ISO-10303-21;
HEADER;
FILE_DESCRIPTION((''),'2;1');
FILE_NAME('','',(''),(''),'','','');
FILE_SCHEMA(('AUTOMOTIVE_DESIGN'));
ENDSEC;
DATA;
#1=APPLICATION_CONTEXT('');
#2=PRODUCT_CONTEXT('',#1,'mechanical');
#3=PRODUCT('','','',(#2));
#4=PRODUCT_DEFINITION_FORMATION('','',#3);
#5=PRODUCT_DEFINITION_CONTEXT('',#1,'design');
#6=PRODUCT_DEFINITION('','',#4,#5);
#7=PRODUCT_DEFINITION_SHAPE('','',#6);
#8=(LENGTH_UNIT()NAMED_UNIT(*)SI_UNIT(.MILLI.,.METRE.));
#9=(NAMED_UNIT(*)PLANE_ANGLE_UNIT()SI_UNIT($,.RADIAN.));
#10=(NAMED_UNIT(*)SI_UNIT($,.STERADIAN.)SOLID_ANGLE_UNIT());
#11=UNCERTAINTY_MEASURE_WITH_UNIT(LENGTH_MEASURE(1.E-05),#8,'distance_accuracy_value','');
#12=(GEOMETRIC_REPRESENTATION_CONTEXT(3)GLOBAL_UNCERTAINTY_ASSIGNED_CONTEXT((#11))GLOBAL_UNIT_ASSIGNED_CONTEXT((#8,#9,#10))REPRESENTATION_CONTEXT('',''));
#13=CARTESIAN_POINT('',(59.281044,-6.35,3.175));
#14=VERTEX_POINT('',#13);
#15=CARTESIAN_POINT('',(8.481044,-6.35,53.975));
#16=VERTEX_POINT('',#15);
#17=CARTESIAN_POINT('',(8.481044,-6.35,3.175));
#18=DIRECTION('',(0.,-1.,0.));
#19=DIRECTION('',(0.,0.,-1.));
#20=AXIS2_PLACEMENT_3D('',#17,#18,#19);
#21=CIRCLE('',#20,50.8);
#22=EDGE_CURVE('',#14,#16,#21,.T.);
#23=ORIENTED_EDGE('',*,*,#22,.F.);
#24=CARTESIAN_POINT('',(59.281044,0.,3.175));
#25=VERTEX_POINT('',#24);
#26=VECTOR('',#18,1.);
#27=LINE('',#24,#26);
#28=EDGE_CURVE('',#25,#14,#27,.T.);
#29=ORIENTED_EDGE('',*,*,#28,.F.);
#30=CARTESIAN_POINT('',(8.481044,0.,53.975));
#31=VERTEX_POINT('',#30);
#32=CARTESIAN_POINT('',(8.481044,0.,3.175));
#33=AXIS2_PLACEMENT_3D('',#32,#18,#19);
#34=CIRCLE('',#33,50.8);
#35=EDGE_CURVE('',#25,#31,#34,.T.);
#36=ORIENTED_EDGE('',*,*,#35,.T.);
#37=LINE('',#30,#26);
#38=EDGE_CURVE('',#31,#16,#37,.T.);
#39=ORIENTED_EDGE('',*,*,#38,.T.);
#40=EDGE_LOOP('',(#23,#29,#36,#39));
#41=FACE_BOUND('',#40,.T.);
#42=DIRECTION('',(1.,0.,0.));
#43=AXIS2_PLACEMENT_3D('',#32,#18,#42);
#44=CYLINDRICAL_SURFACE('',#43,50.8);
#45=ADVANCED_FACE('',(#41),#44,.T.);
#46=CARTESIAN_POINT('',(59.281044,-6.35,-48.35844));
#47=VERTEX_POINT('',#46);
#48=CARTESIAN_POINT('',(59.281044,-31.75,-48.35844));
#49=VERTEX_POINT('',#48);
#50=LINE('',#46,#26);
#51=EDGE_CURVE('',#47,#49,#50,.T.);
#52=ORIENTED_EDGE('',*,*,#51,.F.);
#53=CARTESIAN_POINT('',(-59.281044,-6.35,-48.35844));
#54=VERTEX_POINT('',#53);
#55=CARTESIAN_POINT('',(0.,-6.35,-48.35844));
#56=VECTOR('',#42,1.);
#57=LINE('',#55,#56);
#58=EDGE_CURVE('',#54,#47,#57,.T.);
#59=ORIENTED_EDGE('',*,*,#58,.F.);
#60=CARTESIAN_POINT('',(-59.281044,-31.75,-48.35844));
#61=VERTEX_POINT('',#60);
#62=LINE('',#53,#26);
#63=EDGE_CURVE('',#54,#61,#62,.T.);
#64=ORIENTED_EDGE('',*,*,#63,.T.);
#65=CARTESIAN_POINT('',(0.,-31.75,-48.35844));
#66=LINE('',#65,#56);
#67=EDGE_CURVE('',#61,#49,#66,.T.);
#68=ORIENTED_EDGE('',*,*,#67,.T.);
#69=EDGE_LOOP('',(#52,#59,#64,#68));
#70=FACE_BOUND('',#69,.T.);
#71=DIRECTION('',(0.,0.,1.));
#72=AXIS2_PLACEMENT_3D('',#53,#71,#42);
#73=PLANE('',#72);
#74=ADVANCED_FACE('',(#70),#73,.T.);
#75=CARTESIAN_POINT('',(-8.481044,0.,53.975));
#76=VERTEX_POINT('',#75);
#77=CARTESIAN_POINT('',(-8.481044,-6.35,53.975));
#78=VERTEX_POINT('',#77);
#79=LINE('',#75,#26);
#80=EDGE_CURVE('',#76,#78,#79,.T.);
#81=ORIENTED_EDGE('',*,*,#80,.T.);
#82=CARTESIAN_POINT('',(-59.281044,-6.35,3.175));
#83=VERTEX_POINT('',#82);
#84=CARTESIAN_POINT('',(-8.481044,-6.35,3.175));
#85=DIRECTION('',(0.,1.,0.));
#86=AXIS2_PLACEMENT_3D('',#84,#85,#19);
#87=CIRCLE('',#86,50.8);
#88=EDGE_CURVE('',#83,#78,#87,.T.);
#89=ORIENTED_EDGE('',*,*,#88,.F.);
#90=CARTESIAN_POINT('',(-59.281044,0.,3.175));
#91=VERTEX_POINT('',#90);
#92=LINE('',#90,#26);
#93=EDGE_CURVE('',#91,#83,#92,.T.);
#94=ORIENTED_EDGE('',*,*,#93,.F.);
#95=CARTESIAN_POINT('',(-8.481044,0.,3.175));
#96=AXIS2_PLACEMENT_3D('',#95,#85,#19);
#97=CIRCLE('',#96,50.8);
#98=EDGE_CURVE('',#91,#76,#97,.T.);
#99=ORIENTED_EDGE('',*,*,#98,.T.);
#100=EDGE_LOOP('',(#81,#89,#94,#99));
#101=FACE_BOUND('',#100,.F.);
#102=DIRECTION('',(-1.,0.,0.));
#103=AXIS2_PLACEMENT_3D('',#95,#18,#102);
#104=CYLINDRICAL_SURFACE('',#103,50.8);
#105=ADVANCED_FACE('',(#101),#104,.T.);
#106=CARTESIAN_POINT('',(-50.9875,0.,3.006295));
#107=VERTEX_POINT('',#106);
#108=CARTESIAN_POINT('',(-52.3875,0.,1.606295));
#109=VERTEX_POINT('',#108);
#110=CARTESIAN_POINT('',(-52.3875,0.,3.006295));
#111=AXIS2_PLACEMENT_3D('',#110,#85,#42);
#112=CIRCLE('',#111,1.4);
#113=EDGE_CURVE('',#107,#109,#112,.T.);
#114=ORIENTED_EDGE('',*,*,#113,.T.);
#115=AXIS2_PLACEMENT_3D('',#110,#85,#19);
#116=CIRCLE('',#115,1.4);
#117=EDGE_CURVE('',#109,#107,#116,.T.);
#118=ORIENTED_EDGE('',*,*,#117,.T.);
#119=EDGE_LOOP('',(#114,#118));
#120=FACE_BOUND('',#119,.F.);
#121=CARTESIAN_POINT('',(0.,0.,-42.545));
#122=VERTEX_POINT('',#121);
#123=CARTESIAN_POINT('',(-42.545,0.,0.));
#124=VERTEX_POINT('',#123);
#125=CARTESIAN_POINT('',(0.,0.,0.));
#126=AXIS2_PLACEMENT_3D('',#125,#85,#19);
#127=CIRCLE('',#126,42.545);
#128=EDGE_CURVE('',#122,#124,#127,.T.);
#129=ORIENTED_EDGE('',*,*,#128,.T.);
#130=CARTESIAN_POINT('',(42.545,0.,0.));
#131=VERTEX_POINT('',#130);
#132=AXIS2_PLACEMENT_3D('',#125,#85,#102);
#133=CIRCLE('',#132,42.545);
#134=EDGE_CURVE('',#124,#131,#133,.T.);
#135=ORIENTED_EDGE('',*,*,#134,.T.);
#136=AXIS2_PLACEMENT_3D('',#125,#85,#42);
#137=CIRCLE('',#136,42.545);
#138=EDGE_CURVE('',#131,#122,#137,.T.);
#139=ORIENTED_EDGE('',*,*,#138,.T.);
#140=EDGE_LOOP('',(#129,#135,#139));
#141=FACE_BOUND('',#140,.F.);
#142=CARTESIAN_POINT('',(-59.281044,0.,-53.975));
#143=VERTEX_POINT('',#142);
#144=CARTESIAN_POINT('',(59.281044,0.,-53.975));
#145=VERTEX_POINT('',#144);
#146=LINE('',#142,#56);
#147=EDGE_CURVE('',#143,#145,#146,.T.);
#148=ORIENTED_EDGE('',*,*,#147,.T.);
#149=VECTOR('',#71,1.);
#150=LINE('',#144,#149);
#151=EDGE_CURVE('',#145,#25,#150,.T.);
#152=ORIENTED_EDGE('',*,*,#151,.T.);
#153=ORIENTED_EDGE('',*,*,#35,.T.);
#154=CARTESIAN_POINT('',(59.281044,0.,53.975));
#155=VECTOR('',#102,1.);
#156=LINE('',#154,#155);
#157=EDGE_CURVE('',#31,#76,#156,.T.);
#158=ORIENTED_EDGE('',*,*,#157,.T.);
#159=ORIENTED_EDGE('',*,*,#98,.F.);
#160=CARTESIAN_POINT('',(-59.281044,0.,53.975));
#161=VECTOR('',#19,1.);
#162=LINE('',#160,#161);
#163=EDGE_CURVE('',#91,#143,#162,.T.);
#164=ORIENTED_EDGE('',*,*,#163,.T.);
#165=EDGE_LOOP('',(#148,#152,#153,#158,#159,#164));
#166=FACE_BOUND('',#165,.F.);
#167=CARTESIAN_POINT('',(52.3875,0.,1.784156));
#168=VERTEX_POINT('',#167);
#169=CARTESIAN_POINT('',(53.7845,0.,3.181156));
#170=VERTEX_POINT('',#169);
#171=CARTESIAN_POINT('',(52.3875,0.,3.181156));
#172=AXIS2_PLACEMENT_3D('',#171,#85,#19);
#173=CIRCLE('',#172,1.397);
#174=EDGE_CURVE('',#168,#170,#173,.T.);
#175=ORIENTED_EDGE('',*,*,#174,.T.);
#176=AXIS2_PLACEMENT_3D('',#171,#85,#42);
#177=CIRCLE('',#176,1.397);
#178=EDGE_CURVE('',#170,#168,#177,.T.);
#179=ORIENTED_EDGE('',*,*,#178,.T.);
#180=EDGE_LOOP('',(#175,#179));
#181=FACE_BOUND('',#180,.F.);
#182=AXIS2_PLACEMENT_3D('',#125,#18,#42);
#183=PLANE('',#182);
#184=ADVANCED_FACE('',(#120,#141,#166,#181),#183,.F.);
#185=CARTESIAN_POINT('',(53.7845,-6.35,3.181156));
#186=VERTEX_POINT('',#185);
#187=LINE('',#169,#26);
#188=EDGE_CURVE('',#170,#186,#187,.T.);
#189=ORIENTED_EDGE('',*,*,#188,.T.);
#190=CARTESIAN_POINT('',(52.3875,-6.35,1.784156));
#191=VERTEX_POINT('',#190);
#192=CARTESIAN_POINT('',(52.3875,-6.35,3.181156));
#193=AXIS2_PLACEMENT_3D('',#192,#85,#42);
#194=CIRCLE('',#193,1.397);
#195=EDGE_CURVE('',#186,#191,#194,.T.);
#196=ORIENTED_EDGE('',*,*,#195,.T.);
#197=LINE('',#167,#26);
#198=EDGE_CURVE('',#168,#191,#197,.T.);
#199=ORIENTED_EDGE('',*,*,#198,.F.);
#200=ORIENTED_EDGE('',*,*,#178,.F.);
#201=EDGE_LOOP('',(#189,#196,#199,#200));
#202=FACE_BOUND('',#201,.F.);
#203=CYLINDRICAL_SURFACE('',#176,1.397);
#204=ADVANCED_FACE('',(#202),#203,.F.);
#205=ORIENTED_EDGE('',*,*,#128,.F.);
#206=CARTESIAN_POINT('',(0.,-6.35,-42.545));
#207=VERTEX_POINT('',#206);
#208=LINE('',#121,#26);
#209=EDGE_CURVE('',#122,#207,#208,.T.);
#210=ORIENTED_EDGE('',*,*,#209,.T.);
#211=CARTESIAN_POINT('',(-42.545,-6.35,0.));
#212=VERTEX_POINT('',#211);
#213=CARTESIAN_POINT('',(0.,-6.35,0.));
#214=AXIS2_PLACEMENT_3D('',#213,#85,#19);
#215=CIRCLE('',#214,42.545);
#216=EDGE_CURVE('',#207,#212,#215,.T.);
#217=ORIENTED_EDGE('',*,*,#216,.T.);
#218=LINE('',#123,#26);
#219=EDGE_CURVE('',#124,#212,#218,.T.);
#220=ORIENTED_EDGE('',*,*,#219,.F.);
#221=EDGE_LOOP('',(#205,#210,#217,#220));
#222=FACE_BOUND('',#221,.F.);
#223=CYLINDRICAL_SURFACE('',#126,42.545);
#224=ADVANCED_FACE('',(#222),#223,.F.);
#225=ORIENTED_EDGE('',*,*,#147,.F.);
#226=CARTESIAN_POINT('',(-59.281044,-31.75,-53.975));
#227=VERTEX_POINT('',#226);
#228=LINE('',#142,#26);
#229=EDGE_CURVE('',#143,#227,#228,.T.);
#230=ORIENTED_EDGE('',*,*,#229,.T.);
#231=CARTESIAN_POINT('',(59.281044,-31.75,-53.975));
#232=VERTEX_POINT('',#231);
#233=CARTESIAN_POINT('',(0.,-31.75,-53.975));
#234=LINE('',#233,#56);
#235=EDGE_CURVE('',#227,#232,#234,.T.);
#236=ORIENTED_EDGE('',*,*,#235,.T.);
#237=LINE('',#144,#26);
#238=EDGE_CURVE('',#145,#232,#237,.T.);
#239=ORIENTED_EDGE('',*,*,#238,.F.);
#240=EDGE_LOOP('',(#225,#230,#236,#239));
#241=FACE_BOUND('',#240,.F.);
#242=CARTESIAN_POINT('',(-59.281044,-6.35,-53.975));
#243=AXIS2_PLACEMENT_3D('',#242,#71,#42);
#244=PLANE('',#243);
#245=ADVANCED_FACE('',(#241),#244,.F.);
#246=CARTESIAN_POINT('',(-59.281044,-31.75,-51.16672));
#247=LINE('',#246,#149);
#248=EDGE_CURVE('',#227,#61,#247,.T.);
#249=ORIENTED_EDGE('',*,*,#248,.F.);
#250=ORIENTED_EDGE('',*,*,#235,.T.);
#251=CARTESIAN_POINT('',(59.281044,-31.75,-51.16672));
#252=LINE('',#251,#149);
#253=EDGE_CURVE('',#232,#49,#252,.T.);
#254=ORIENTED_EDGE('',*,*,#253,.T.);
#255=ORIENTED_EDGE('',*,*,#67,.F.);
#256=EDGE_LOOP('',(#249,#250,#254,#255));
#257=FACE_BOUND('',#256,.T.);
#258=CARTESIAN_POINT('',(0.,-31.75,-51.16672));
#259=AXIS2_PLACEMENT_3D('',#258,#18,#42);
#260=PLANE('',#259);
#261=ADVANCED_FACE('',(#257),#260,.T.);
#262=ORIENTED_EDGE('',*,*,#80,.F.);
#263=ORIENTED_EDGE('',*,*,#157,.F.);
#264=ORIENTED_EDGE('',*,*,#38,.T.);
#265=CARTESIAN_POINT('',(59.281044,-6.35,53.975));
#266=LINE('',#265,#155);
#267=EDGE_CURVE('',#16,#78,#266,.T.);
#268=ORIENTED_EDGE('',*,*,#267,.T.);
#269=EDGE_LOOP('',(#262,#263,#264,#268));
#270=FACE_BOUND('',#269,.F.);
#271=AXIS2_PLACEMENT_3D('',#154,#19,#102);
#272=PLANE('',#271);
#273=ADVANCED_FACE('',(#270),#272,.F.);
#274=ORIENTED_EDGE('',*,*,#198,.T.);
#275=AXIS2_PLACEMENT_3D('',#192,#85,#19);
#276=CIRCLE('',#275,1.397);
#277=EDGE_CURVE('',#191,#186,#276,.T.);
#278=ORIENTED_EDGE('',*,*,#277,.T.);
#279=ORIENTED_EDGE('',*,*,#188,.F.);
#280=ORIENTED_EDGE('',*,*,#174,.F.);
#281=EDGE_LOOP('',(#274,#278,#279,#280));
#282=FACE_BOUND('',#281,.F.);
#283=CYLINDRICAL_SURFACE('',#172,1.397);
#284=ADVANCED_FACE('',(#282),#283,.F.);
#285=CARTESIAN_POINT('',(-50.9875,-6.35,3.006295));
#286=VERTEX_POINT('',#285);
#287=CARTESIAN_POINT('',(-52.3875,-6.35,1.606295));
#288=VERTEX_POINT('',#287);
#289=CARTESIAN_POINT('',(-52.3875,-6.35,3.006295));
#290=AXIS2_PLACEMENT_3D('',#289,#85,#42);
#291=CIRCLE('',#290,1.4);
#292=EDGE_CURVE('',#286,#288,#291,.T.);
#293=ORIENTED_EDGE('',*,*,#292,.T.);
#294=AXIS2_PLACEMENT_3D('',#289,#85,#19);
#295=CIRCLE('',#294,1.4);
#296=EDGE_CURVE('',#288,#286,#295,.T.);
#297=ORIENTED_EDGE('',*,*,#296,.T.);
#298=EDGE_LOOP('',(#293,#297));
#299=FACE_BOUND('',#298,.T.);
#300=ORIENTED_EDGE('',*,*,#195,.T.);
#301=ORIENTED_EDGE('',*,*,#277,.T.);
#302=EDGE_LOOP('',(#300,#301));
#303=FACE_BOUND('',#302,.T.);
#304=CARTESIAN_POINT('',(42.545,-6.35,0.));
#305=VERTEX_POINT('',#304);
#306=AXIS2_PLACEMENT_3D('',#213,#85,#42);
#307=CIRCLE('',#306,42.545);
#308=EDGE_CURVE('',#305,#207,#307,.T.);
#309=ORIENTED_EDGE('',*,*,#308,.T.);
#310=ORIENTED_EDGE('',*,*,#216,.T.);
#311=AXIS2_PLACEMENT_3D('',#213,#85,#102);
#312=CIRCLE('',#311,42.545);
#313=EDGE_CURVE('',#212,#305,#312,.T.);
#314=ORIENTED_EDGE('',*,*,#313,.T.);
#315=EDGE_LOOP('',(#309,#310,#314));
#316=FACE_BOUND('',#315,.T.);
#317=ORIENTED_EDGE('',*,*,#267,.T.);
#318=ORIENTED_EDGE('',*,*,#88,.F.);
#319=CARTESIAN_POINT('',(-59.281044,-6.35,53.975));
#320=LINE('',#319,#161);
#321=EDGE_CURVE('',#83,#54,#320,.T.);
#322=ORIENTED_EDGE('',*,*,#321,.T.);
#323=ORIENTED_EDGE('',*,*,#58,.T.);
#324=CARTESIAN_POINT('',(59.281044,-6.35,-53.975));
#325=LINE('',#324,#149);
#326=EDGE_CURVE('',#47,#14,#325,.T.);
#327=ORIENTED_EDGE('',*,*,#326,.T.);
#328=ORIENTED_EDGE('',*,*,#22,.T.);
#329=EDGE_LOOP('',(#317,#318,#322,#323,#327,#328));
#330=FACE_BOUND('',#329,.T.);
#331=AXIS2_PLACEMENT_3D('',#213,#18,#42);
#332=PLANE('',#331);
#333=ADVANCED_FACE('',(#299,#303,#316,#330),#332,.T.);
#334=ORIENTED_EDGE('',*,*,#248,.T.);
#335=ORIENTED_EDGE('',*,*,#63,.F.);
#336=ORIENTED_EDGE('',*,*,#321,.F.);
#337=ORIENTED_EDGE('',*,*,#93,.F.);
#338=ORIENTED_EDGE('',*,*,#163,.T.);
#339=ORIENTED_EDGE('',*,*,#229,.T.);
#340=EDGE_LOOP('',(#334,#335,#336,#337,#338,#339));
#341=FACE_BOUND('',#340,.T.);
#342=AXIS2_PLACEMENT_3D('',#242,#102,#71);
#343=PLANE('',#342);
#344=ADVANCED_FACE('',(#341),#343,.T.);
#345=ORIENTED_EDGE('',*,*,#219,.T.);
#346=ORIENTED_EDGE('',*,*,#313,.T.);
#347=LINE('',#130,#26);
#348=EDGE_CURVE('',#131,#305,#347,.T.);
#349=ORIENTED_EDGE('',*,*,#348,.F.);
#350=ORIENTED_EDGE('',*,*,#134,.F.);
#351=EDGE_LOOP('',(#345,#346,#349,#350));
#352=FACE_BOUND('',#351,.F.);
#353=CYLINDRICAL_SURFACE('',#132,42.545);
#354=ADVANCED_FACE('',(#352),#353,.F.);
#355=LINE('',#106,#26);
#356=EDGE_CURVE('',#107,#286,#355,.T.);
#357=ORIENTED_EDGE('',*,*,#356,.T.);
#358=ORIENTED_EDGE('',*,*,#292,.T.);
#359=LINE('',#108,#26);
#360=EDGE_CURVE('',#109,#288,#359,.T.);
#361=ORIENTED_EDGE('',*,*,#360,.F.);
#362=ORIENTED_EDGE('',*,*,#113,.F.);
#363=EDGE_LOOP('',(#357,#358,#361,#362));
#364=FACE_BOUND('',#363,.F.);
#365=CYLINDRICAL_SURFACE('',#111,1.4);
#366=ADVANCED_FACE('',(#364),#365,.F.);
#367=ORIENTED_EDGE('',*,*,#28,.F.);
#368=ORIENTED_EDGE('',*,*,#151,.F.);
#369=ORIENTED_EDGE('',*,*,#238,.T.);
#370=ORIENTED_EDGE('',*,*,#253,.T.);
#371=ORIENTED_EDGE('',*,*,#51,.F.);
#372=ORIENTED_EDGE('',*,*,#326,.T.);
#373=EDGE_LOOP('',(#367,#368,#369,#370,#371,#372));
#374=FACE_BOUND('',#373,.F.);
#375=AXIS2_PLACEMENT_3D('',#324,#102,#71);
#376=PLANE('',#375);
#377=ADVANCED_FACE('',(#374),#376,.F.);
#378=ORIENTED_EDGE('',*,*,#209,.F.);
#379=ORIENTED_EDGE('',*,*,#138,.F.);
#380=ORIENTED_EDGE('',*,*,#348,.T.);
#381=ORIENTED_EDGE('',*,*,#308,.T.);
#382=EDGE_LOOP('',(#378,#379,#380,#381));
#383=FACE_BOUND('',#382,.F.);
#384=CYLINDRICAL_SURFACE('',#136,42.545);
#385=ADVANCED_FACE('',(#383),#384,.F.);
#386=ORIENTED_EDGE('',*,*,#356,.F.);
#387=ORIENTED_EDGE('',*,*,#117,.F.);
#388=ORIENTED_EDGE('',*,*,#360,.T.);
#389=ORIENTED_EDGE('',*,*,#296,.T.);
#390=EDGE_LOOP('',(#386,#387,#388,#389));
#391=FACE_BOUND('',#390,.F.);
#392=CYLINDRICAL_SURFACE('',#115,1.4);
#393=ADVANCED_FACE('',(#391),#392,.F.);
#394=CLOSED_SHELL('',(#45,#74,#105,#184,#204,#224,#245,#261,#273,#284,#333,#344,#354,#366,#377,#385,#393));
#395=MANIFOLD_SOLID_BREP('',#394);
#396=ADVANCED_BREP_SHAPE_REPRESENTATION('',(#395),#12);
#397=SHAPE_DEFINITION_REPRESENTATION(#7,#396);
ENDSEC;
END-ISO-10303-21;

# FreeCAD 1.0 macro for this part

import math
import FreeCAD as App
import Part
import Sketcher
Q = App.Units.Quantity


def edges_at(feature, points):
    """Names of the edges that pass closest to the given points."""
    edges = feature.Shape.Edges
    near = lambda p: min(range(len(edges)), key=lambda i: edges[i].distToShape(Part.Vertex(*p))[0])
    return sorted({f"Edge{near(p) + 1}" for p in points})

doc = App.newDocument("Part")
body = doc.addObject("PartDesign::Body", "Body")

sketch1 = doc.addObject("Sketcher::SketchObject", "Sketch")
body.addObject(sketch1)
sketch1.AttachmentSupport = (doc.XZ_Plane, [""])
sketch1.MapMode = "FlatFace"
sketch1.addGeometry([
    Part.LineSegment(App.Vector(-59.3, -54, 0), App.Vector(59.3, -54, 0)),
    Part.LineSegment(App.Vector(59.3, -54, 0), App.Vector(59.3, 54, 0)),
    Part.LineSegment(App.Vector(59.3, 54, 0), App.Vector(-59.3, 54, 0)),
    Part.LineSegment(App.Vector(-59.3, 54, 0), App.Vector(-59.3, -54, 0)),
    Part.ArcOfCircle(Part.Circle(App.Vector(-52.4, 3, 0), App.Vector(0, 0, 1), 1.4), math.radians(0), math.radians(270)),
    Part.ArcOfCircle(Part.Circle(App.Vector(-52.4, 3, 0), App.Vector(0, 0, 1), 1.4), math.radians(-90), math.radians(0)),
    Part.ArcOfCircle(Part.Circle(App.Vector(0, 0, 0), App.Vector(0, 0, 1), 42.5), math.radians(180), math.radians(270)),
    Part.ArcOfCircle(Part.Circle(App.Vector(0, 0, 0), App.Vector(0, 0, 1), 42.5), math.radians(0), math.radians(180)),
    Part.ArcOfCircle(Part.Circle(App.Vector(0, 0, 0), App.Vector(0, 0, 1), 42.5), math.radians(-90), math.radians(0)),
    Part.ArcOfCircle(Part.Circle(App.Vector(52.4, 3.2, 0), App.Vector(0, 0, 1), 1.4), math.radians(0), math.radians(270)),
    Part.ArcOfCircle(Part.Circle(App.Vector(52.4, 3.2, 0), App.Vector(0, 0, 1), 1.4), math.radians(-90), math.radians(0)),
], False)
sketch1.addConstraint([
    Sketcher.Constraint("Coincident", 0, 2, 1, 1),
    Sketcher.Constraint("Coincident", 1, 2, 2, 1),
    Sketcher.Constraint("Coincident", 2, 2, 3, 1),
    Sketcher.Constraint("Coincident", 3, 2, 0, 1),
    Sketcher.Constraint("Tangent", 4, 1, 5, 2),
    Sketcher.Constraint("Coincident", 5, 1, 4, 2),
    Sketcher.Constraint("Tangent", 6, 1, 7, 2),
    Sketcher.Constraint("Tangent", 7, 1, 8, 2),
    Sketcher.Constraint("Tangent", 8, 1, 6, 2),
    Sketcher.Constraint("Tangent", 9, 1, 10, 2),
    Sketcher.Constraint("Coincident", 10, 1, 9, 2),
    Sketcher.Constraint("Horizontal", 0),
    Sketcher.Constraint("Vertical", 1),
    Sketcher.Constraint("Horizontal", 2),
    Sketcher.Constraint("Vertical", 3),
    Sketcher.Constraint("Coincident", 6, 3, -1, 1),
    Sketcher.Constraint("Symmetric", 0, 2, 2, 2, -1, 1),
    Sketcher.Constraint("PointOnObject", 6, 1, -1),
    Sketcher.Constraint("PointOnObject", 7, 1, -1),
    Sketcher.Constraint("PointOnObject", 8, 1, -2),
    Sketcher.Constraint("Horizontal", 5, 3, 4, 1),
    Sketcher.Constraint("Horizontal", 10, 3, 9, 1),
    Sketcher.Constraint("Vertical", 4, 3, 5, 1),
    Sketcher.Constraint("Vertical", 9, 3, 10, 1),
    Sketcher.Constraint("Radius", 6, Q("1.675 in")),
    Sketcher.Constraint("Radius", 9, Q("0.055 in")),
    Sketcher.Constraint("DistanceY", 1, 1, 1, 2, Q("4.25 in")),
    Sketcher.Constraint("Radius", 4, 1.4),
    Sketcher.Constraint("DistanceX", 4, 3, -1, 1, Q("2.0625 in")),
    Sketcher.Constraint("DistanceX", -1, 1, 9, 3, Q("2.0625 in")),
    Sketcher.Constraint("DistanceX", 0, 1, 0, 2, 118.562087),
    Sketcher.Constraint("DistanceY", 4, 3, 9, 3, 0.174861),
    Sketcher.Constraint("DistanceY", -1, 1, 4, 3, 3.006295),
])
pad1 = doc.addObject("PartDesign::Pad", "Pad")
body.addObject(pad1)
pad1.Profile = sketch1
pad1.Length = Q("0.25 in")
doc.recompute()

fillet = doc.addObject("PartDesign::Fillet", "Fillet")
body.addObject(fillet)
fillet.Base = (pad1, edges_at(pad1, [(59.281, -3.175, 53.975), (-59.281, -3.175, 53.975)]))
fillet.Radius = Q("2 in")

sketch2 = doc.addObject("Sketcher::SketchObject", "Sketch001")
body.addObject(sketch2)
sketch2.AttachmentSupport = (doc.XZ_Plane, [""])
sketch2.MapMode = "FlatFace"
sketch2.AttachmentOffset = App.Placement(App.Vector(0, 0, 0.25 * 25.4), App.Rotation())
sketch2.addGeometry([
    Part.LineSegment(App.Vector(-59, -48, 0), App.Vector(-59, -54, 0)),
    Part.LineSegment(App.Vector(-59, -54, 0), App.Vector(59, -54, 0)),
    Part.LineSegment(App.Vector(59, -54, 0), App.Vector(59, -48, 0)),
    Part.LineSegment(App.Vector(59, -48, 0), App.Vector(-59, -48, 0)),
], False)
sketch2.addConstraint([
    Sketcher.Constraint("Coincident", 0, 2, 1, 1),
    Sketcher.Constraint("Coincident", 1, 2, 2, 1),
    Sketcher.Constraint("Coincident", 2, 2, 3, 1),
    Sketcher.Constraint("Coincident", 3, 2, 0, 1),
    Sketcher.Constraint("Vertical", 0),
    Sketcher.Constraint("Horizontal", 1),
    Sketcher.Constraint("Vertical", 2),
    Sketcher.Constraint("Horizontal", 3),
    Sketcher.Constraint("DistanceY", 0, 2, -1, 1, Q("2.125 in")),
    Sketcher.Constraint("DistanceY", 0, 2, 0, 1, 5.61656),
    Sketcher.Constraint("DistanceX", 1, 1, 1, 2, 118.562087),
    Sketcher.Constraint("DistanceX", 0, 2, -1, 1, 59.281044),
])
pad2 = doc.addObject("PartDesign::Pad", "Pad001")
body.addObject(pad2)
pad2.Profile = sketch2
pad2.Length = Q("1 in")

doc.recompute()
